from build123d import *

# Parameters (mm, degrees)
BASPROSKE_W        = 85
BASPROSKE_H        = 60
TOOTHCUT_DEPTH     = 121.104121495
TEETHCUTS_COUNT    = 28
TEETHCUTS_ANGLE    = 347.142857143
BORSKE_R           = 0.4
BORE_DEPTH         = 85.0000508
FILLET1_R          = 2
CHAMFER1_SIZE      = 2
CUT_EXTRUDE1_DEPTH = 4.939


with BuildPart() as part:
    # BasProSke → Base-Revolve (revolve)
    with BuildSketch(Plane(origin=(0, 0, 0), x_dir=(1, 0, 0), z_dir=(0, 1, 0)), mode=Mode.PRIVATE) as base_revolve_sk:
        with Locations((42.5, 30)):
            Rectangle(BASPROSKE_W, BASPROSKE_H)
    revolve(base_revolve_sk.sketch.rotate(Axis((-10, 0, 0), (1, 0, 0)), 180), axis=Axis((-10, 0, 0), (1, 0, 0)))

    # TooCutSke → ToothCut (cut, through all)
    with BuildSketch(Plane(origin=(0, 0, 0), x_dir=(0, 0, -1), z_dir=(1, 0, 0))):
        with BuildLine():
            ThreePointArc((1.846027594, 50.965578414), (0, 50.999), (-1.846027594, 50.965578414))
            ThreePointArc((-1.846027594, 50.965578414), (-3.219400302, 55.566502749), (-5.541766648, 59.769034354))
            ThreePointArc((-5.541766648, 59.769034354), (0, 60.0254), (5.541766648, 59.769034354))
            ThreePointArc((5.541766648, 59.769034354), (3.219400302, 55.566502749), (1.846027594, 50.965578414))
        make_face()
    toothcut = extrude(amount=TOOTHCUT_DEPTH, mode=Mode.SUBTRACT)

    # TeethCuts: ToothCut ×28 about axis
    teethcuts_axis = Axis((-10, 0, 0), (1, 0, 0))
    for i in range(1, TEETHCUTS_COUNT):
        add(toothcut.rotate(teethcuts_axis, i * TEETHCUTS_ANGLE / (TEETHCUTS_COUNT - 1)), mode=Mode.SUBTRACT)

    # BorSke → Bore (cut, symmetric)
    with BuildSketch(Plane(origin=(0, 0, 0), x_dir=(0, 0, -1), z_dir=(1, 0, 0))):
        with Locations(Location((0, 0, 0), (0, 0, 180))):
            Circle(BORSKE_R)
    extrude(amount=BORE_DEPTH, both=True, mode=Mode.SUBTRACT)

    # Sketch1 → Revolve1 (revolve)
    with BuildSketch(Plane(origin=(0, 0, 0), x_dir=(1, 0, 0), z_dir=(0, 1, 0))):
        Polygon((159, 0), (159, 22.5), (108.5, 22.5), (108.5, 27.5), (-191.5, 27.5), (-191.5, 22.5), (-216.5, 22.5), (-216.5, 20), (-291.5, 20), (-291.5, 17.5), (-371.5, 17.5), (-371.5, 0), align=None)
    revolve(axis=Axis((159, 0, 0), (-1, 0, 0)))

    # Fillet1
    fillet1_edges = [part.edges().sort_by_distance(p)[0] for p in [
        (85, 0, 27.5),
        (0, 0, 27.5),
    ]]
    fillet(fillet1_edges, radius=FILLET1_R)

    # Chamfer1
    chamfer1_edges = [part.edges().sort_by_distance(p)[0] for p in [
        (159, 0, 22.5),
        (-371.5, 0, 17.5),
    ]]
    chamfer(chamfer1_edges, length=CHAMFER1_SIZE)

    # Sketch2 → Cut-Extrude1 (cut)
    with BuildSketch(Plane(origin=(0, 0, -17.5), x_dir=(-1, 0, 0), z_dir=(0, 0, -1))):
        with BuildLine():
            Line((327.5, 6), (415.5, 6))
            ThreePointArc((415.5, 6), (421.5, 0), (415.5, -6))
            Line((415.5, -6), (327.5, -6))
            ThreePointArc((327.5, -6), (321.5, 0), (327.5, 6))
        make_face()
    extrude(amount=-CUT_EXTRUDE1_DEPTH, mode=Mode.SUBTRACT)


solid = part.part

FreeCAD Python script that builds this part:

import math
import FreeCAD as App
import Part
import Sketcher


def edges_at(feature, points):
    """Names of the edges that pass closest to the given points."""
    edges = feature.Shape.Edges
    near = lambda p: min(range(len(edges)), key=lambda i: edges[i].distToShape(Part.Vertex(*p))[0])
    return sorted({f"Edge{near(p) + 1}" for p in points})


def add_polygon(sketch, points):
    """Adds a closed chain of lines whose ends are joined by coincident constraints."""
    first, n = sketch.GeometryCount, len(points)
    for a, b in zip(points, points[1:] + points[:1]):
        sketch.addGeometry(Part.LineSegment(App.Vector(*a, 0), App.Vector(*b, 0)), False)
    for i in range(n):
        sketch.addConstraint(Sketcher.Constraint("Coincident", first + i, 2, first + (i + 1) % n, 1))

doc = App.newDocument("Part")
body = doc.addObject("PartDesign::Body", "Body")

# Sketch on XZ plane
sketch1 = doc.addObject("Sketcher::SketchObject", "Sketch")
body.addObject(sketch1)
sketch1.AttachmentSupport = (doc.XZ_Plane, [""])
sketch1.MapMode = "FlatFace"
add_polygon(sketch1, [(0, -60), (0, 0), (85, 0), (85, -60)])  # lines 0-3
sketch1.addConstraint([
    Sketcher.Constraint("Vertical", 0),
    Sketcher.Constraint("Horizontal", 1),
    Sketcher.Constraint("Vertical", 2),
    Sketcher.Constraint("Horizontal", 3),
    Sketcher.Constraint("Coincident", 0, 2, -1, 1),
    Sketcher.Constraint("DistanceX", 1, 1, 1, 2, 85.0),
    Sketcher.Constraint("DistanceY", 0, 1, 0, 2, 60.0),
])
revolution = doc.addObject("PartDesign::Revolution", "Revolution")
body.addObject(revolution)
revolution.Profile = sketch1
revolution.ReferenceAxis = (sketch1, ["H_Axis"])
revolution.Angle = 360

# Sketch on YZ plane
sketch2 = doc.addObject("Sketcher::SketchObject", "Sketch001")
body.addObject(sketch2)
sketch2.AttachmentSupport = (doc.YZ_Plane, [""])
sketch2.MapMode = "FlatFace"
sketch2.addGeometry([
    Part.ArcOfCircle(Part.Circle(App.Vector(0, 0, 0), App.Vector(0, 0, 1), 51), math.radians(-2.07), math.radians(2.07)),
    Part.ArcOfCircle(Part.Circle(App.Vector(46.9, -23.9, 0), App.Vector(0, 0, 1), 22.4), math.radians(55), math.radians(80)),
    Part.ArcOfCircle(Part.Circle(App.Vector(0, 0, 0), App.Vector(0, 0, 1), 60), math.radians(-5.3), math.radians(5.3)),
    Part.ArcOfCircle(Part.Circle(App.Vector(46.9, 23.9, 0), App.Vector(0, 0, 1), 22.4), math.radians(-80), math.radians(-55)),
], False)
sketch2.addConstraint([
    Sketcher.Constraint("Coincident", 0, 1, 1, 2),
    Sketcher.Constraint("Coincident", 1, 1, 2, 1),
    Sketcher.Constraint("Coincident", 2, 2, 3, 2),
    Sketcher.Constraint("Coincident", 3, 1, 0, 2),
    Sketcher.Constraint("Coincident", 0, 3, -1, 1),
    Sketcher.Constraint("Coincident", 2, 3, -1, 1),
    Sketcher.Constraint("Equal", 1, 3),
    Sketcher.Constraint("Symmetric", 1, 3, 3, 3, -1),
    Sketcher.Constraint("Radius", 1, 22.4),
    Sketcher.Constraint("Radius", 0, 50.998999),
    Sketcher.Constraint("Radius", 2, 60.0254),
    Sketcher.Constraint("DistanceY", 1, 1, 3, 3, 29.415),
    Sketcher.Constraint("DistanceX", -1, 1, 1, 3, 46.89591),
])
pocket1 = doc.addObject("PartDesign::Pocket", "Pocket")
body.addObject(pocket1)
pocket1.Profile = sketch2
pocket1.Type = "ThroughAll"
pocket1.Reversed = True
doc.recompute()

polarpattern = doc.addObject("PartDesign::PolarPattern", "PolarPattern")
body.addObject(polarpattern)
polarpattern.Originals = [pocket1]
polarpattern.Axis = (doc.X_Axis, [""])
polarpattern.Angle = 360
polarpattern.Occurrences = 28
body.Tip = polarpattern

# Sketch on YZ plane
sketch3 = doc.addObject("Sketcher::SketchObject", "Sketch002")
body.addObject(sketch3)
sketch3.AttachmentSupport = (doc.YZ_Plane, [""])
sketch3.MapMode = "FlatFace"
sketch3.addGeometry(Part.Circle(App.Vector(0, 0, 0), App.Vector(0, 0, 1), 0.4), False)
sketch3.addConstraint([
    Sketcher.Constraint("Coincident", 0, 3, -1, 1),
    Sketcher.Constraint("Diameter", 0, 0.8),
])
pocket2 = doc.addObject("PartDesign::Pocket", "Pocket001")
body.addObject(pocket2)
pocket2.Profile = sketch3
pocket2.Length = 170.000102
pocket2.Midplane = True

# Sketch on XZ plane
sketch4 = doc.addObject("Sketcher::SketchObject", "Sketch003")
body.addObject(sketch4)
sketch4.AttachmentSupport = (doc.XZ_Plane, [""])
sketch4.MapMode = "FlatFace"
add_polygon(sketch4, [(159, 0), (159, -22.5), (108.5, -22.5), (108.5, -27.5), (-191.5, -27.5), (-191.5, -22.5), (-216.5, -22.5), (-216.5, -20), (-291.5, -20), (-291.5, -17.5), (-371.5, -17.5), (-371.5, 0)])  # lines 0-11
sketch4.addConstraint([
    Sketcher.Constraint("Vertical", 0),
    Sketcher.Constraint("Horizontal", 1),
    Sketcher.Constraint("Vertical", 2),
    Sketcher.Constraint("Horizontal", 3),
    Sketcher.Constraint("Vertical", 4),
    Sketcher.Constraint("Horizontal", 5),
    Sketcher.Constraint("Vertical", 6),
    Sketcher.Constraint("Horizontal", 7),
    Sketcher.Constraint("Vertical", 8),
    Sketcher.Constraint("Horizontal", 9),
    Sketcher.Constraint("Vertical", 10),
    Sketcher.Constraint("Horizontal", 11),
    Sketcher.Constraint("PointOnObject", 10, 2, -1),
    Sketcher.Constraint("Horizontal", 1, 2, 4, 2),
    Sketcher.Constraint("Equal", 6, 8),
    Sketcher.Constraint("DistanceX", 3, 2, 3, 1, 300.0),
    Sketcher.Constraint("DistanceX", 5, 2, 5, 1, 25.0),
    Sketcher.Constraint("DistanceX", 7, 2, 7, 1, 75.0),
    Sketcher.Constraint("DistanceX", 9, 2, 9, 1, 80.0),
    Sketcher.Constraint("DistanceY", 2, 2, 2, 1, 5.0),
    Sketcher.Constraint("DistanceX", 1, 2, 1, 1, 50.5),
    Sketcher.Constraint("DistanceY", 0, 2, 0, 1, 22.5),
    Sketcher.Constraint("DistanceY", 6, 1, 6, 2, 2.5),
    Sketcher.Constraint("DistanceX", -1, 1, 0, 2, 159.0),
])
revolution2 = doc.addObject("PartDesign::Revolution", "Revolution001")
body.addObject(revolution2)
revolution2.Profile = sketch4
revolution2.ReferenceAxis = (sketch4, ["H_Axis"])
revolution2.Angle = 360
doc.recompute()

fillet = doc.addObject("PartDesign::Fillet", "Fillet")
body.addObject(fillet)
fillet.Base = (revolution2, edges_at(revolution2, [(85, 0, 27.5), (0, 0, 27.5)]))
fillet.Radius = 2
doc.recompute()

chamfer = doc.addObject("PartDesign::Chamfer", "Chamfer")
body.addObject(chamfer)
chamfer.Base = (fillet, edges_at(fillet, [(159, 0, 22.5), (-371.5, 0, 17.5)]))
chamfer.Size = 2

# Sketch on XY plane
sketch5 = doc.addObject("Sketcher::SketchObject", "Sketch004")
body.addObject(sketch5)
sketch5.AttachmentSupport = (doc.XY_Plane, [""])
sketch5.MapMode = "FlatFace"
sketch5.AttachmentOffset = App.Placement(App.Vector(0, 0, -17.5), App.Rotation())
sketch5.addGeometry([
    Part.LineSegment(App.Vector(-416, 6, 0), App.Vector(-328, 6, 0)),
    Part.ArcOfCircle(Part.Circle(App.Vector(-328, 0, 0), App.Vector(0, 0, 1), 6), math.radians(-90), math.radians(90)),
    Part.LineSegment(App.Vector(-328, -6, 0), App.Vector(-416, -6, 0)),
    Part.ArcOfCircle(Part.Circle(App.Vector(-416, 0, 0), App.Vector(0, 0, 1), 6), math.radians(90), math.radians(270)),
], False)
sketch5.addConstraint([
    Sketcher.Constraint("Tangent", 0, 2, 1, 2),
    Sketcher.Constraint("Tangent", 1, 1, 2, 1),
    Sketcher.Constraint("Tangent", 2, 2, 3, 2),
    Sketcher.Constraint("Tangent", 3, 1, 0, 1),
    Sketcher.Constraint("Horizontal", 0),
    Sketcher.Constraint("Horizontal", 2),
    Sketcher.Constraint("PointOnObject", 1, 3, -1),
    Sketcher.Constraint("Radius", 1, 6.0),
    Sketcher.Constraint("DistanceX", 0, 1, 0, 2, 88.0),
    Sketcher.Constraint("DistanceX", 1, 3, -1, 1, 327.5),
])
pocket3 = doc.addObject("PartDesign::Pocket", "Pocket002")
body.addObject(pocket3)
pocket3.Profile = sketch5
pocket3.Length = 4.939
pocket3.Reversed = True

doc.recompute()
